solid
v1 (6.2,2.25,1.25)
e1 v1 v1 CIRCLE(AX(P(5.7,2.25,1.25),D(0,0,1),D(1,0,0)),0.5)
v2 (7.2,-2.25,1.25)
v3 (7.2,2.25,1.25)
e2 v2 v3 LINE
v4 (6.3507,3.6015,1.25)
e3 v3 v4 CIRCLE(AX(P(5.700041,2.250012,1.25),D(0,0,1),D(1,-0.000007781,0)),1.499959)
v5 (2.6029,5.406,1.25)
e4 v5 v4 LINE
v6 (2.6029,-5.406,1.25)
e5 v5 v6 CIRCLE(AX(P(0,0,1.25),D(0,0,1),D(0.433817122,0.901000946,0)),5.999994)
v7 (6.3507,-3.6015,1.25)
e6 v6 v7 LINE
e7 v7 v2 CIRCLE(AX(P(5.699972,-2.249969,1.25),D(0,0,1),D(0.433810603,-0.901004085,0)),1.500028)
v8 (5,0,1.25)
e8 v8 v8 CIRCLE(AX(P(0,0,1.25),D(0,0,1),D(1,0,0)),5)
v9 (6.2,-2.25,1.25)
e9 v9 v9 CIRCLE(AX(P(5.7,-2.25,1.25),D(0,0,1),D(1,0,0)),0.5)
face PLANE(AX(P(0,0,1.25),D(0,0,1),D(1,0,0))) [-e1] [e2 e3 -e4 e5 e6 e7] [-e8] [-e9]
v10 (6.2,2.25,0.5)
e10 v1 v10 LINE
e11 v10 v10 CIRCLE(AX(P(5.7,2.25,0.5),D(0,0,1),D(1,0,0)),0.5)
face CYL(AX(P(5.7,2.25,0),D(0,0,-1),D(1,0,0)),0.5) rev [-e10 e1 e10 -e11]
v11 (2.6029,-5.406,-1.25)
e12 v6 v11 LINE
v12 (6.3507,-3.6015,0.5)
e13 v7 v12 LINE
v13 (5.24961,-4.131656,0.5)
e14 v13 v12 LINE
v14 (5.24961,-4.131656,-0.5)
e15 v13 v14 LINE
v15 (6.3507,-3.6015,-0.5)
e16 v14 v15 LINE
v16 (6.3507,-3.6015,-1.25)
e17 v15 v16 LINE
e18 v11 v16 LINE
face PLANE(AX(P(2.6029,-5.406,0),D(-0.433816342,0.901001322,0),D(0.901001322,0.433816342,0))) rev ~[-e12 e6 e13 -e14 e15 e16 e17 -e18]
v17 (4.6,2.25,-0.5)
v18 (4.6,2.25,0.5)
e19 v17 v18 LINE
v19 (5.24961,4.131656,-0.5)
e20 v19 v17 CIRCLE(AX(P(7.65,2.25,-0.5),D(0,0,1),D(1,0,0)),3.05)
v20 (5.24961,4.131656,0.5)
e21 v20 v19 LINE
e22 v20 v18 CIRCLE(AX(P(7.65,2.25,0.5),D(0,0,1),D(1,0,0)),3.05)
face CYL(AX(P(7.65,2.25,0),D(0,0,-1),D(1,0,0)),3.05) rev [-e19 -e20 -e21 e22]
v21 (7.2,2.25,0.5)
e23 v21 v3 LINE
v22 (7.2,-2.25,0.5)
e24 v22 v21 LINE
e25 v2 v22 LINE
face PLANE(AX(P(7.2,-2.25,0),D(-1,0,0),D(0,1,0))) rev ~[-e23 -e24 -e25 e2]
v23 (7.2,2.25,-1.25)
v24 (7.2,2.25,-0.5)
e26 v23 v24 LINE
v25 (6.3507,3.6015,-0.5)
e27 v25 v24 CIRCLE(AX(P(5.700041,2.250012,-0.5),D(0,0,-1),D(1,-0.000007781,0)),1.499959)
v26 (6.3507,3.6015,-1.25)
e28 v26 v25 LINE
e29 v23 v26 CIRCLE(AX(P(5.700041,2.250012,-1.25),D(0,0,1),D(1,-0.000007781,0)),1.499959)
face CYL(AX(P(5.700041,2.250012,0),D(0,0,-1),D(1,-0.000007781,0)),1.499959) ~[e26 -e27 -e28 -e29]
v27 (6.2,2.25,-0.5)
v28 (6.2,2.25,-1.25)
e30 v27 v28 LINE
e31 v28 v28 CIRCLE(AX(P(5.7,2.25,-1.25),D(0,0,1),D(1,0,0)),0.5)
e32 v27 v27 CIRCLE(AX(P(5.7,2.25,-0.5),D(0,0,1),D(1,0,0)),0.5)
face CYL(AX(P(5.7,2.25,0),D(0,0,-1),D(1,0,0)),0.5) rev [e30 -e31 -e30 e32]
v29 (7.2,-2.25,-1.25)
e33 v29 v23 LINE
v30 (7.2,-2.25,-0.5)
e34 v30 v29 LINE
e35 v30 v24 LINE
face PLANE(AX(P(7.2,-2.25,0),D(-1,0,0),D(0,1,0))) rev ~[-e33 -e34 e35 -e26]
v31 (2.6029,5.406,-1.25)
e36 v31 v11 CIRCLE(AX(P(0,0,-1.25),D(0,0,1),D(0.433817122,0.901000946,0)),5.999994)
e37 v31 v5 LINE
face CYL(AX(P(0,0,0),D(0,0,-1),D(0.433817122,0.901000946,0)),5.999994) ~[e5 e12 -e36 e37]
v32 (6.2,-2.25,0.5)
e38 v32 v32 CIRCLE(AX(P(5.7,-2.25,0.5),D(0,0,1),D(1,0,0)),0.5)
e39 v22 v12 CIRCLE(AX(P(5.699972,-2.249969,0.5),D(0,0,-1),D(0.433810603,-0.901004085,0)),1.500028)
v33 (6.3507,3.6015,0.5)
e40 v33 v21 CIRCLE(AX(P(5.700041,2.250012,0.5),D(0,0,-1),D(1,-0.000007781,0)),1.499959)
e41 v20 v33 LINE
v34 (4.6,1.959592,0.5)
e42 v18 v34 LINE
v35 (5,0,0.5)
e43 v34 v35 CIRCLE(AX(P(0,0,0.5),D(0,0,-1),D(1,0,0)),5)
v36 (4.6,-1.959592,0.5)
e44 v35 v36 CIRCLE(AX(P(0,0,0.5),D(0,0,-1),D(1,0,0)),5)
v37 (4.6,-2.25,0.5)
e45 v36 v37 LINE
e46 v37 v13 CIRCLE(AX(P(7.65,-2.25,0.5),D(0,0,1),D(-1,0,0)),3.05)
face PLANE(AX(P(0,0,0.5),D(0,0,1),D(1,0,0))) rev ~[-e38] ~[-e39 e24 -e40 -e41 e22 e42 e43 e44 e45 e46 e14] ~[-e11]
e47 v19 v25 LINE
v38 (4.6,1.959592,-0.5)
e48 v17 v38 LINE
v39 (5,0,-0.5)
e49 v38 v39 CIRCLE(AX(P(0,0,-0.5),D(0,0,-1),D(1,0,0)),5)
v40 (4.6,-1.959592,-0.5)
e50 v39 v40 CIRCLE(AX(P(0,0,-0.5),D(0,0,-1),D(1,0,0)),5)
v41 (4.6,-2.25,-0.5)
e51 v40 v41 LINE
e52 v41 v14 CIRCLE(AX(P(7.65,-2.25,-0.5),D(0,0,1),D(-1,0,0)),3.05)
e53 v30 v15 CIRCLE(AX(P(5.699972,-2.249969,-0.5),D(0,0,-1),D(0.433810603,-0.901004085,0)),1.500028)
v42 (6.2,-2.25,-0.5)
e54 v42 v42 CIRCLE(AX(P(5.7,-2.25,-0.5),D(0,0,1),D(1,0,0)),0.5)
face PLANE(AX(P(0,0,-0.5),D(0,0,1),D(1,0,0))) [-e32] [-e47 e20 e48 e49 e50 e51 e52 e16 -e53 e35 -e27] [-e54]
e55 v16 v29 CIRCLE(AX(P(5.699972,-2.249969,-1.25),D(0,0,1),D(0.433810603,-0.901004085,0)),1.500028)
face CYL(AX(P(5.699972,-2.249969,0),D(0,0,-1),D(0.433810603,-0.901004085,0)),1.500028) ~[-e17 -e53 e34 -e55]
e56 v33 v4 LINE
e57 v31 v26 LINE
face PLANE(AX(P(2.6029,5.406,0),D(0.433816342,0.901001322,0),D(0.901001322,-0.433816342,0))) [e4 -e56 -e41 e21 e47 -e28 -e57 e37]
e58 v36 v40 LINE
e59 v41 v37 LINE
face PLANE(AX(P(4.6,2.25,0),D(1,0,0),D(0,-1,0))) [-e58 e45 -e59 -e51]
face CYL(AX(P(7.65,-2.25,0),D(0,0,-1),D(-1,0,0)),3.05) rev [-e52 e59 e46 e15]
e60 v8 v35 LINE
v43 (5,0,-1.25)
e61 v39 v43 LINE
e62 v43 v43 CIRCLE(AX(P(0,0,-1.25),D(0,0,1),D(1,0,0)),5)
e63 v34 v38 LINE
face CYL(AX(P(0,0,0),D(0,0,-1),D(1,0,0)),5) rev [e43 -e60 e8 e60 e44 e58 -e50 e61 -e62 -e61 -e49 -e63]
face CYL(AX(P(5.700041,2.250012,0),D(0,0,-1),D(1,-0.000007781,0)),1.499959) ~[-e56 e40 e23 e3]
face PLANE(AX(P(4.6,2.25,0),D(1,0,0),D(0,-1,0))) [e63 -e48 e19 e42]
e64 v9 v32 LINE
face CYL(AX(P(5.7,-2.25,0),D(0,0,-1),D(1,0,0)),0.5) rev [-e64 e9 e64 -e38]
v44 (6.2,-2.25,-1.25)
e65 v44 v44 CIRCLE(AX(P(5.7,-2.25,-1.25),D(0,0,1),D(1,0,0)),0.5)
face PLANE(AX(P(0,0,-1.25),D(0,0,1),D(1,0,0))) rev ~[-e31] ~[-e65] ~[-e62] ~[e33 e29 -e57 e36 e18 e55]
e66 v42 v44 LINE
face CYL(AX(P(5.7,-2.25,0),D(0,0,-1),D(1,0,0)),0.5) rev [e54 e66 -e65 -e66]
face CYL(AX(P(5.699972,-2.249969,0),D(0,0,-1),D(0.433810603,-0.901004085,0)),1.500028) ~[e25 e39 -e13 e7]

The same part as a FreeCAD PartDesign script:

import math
import FreeCAD as App
import Part
import Sketcher

V = App.Vector

doc = App.newDocument("Part")
body = doc.addObject("PartDesign::Body", "Body")

sketch1 = body.newObject("Sketcher::SketchObject", "Sketch")
sketch1.AttachmentSupport = (doc.getObject("XY_Plane"), [""])
sketch1.MapMode = "FlatFace"
sketch1.addGeometry([
    Part.LineSegment(V(7.2, -2.25, 0), V(7.2, 2.25, 0)),
    Part.ArcOfCircle(Part.Circle(V(5.7, 2.25, 0), V(0, 0, 1), 1.5), math.radians(0), math.radians(64.290811)),
    Part.LineSegment(V(6.3507, 3.6015, 0), V(2.6029, 5.406, 0)),
    Part.ArcOfCircle(Part.Circle(V(0, 0, 0), V(0, 0, 1), 5.999994), math.radians(64.289951), math.radians(295.710049)),
    Part.LineSegment(V(2.6029, -5.406, 0), V(6.3507, -3.6015, 0)),
    Part.ArcOfCircle(Part.Circle(V(5.7, -2.25, 0), V(0, 0, 1), 1.499988), math.radians(-64.290811), math.radians(0)),
    Part.Circle(V(5.7, -2.25, 0), V(0, 0, 1), 0.5),
    Part.Circle(V(0, 0, 0), V(0, 0, 1), 5),
    Part.Circle(V(5.7, 2.25, 0), V(0, 0, 1), 0.5),
], False)
sketch1.addConstraint([
    Sketcher.Constraint("Tangent", 0, 2, 1, 1),
    Sketcher.Constraint("Tangent", 1, 2, 2, 1),
    Sketcher.Constraint("Tangent", 2, 2, 3, 1),
    Sketcher.Constraint("Tangent", 3, 2, 4, 1),
    Sketcher.Constraint("Tangent", 4, 2, 5, 1),
    Sketcher.Constraint("Tangent", 5, 2, 0, 1),
    Sketcher.Constraint("Vertical", 0),
    Sketcher.Constraint("Coincident", 3, 3, -1, 1),
    Sketcher.Constraint("Coincident", 7, 3, -1, 1),
    Sketcher.Constraint("Coincident", 6, 3, 5, 3),
    Sketcher.Constraint("Coincident", 8, 3, 1, 3),
    Sketcher.Constraint("Equal", 1, 5),
    Sketcher.Constraint("Equal", 6, 8),
    Sketcher.Constraint("Vertical", 2, 2, 3, 2),
    Sketcher.Constraint("Diameter", 6, 1.0),
    Sketcher.Constraint("Diameter", 7, 10.0),
    Sketcher.Constraint("Radius", 3, 6.0),
    Sketcher.Constraint("Radius", 1, 1.5),
    Sketcher.Constraint("DistanceY", 0, 1, 0, 2, 4.5),
    Sketcher.Constraint("DistanceX", -1, 1, 1, 3, 5.7),
])
pad1 = body.newObject("PartDesign::Pad", "Pad")
pad1.Profile = sketch1
pad1.Length = 2.5
pad1.Midplane = True

sketch2 = body.newObject("Sketcher::SketchObject", "Sketch001")
sketch2.AttachmentSupport = (doc.getObject("XY_Plane"), [""])
sketch2.MapMode = "FlatFace"
sketch2.addGeometry([
    Part.ArcOfCircle(Part.Circle(V(7.65, 2.25, 0), V(0, 0, 1), 3.05), math.radians(0), math.radians(180)),
    Part.LineSegment(V(4.6, 2.25, 0), V(4.6, -2.25, 0)),
    Part.ArcOfCircle(Part.Circle(V(7.65, -2.25, 0), V(0, 0, 1), 3.05), math.radians(180), math.radians(360)),
    Part.LineSegment(V(10.7, -2.25, 0), V(10.7, 2.25, 0)),
    Part.Circle(V(5.7, -2.25, 0), V(0, 0, 1), 0.5),
    Part.Circle(V(5.7, 2.25, 0), V(0, 0, 1), 0.5),
], False)
sketch2.addConstraint([
    Sketcher.Constraint("Tangent", 0, 2, 1, 1),
    Sketcher.Constraint("Tangent", 1, 2, 2, 1),
    Sketcher.Constraint("Tangent", 2, 2, 3, 1),
    Sketcher.Constraint("Tangent", 3, 2, 0, 1),
    Sketcher.Constraint("Vertical", 1),
    Sketcher.Constraint("Vertical", 3),
    Sketcher.Constraint("Equal", 4, 5),
    Sketcher.Constraint("Symmetric", 4, 3, 5, 3, -1),
    Sketcher.Constraint("Horizontal", 2, 3, 4, 3),
    Sketcher.Constraint("Horizontal", 0, 3, 5, 3),
    Sketcher.Constraint("Diameter", 4, 1.0),
    Sketcher.Constraint("DistanceX", 4, 3, 2, 2, 5.0),
    Sketcher.Constraint("DistanceX", 0, 2, 5, 3, 1.1),
    Sketcher.Constraint("DistanceY", 1, 2, 1, 1, 4.5),
    Sketcher.Constraint("DistanceX", -1, 1, 4, 3, 5.7),
])
pocket1 = body.newObject("PartDesign::Pocket", "Pocket")
pocket1.Profile = sketch2
pocket1.Length = 1
pocket1.Midplane = True

doc.recompute()
